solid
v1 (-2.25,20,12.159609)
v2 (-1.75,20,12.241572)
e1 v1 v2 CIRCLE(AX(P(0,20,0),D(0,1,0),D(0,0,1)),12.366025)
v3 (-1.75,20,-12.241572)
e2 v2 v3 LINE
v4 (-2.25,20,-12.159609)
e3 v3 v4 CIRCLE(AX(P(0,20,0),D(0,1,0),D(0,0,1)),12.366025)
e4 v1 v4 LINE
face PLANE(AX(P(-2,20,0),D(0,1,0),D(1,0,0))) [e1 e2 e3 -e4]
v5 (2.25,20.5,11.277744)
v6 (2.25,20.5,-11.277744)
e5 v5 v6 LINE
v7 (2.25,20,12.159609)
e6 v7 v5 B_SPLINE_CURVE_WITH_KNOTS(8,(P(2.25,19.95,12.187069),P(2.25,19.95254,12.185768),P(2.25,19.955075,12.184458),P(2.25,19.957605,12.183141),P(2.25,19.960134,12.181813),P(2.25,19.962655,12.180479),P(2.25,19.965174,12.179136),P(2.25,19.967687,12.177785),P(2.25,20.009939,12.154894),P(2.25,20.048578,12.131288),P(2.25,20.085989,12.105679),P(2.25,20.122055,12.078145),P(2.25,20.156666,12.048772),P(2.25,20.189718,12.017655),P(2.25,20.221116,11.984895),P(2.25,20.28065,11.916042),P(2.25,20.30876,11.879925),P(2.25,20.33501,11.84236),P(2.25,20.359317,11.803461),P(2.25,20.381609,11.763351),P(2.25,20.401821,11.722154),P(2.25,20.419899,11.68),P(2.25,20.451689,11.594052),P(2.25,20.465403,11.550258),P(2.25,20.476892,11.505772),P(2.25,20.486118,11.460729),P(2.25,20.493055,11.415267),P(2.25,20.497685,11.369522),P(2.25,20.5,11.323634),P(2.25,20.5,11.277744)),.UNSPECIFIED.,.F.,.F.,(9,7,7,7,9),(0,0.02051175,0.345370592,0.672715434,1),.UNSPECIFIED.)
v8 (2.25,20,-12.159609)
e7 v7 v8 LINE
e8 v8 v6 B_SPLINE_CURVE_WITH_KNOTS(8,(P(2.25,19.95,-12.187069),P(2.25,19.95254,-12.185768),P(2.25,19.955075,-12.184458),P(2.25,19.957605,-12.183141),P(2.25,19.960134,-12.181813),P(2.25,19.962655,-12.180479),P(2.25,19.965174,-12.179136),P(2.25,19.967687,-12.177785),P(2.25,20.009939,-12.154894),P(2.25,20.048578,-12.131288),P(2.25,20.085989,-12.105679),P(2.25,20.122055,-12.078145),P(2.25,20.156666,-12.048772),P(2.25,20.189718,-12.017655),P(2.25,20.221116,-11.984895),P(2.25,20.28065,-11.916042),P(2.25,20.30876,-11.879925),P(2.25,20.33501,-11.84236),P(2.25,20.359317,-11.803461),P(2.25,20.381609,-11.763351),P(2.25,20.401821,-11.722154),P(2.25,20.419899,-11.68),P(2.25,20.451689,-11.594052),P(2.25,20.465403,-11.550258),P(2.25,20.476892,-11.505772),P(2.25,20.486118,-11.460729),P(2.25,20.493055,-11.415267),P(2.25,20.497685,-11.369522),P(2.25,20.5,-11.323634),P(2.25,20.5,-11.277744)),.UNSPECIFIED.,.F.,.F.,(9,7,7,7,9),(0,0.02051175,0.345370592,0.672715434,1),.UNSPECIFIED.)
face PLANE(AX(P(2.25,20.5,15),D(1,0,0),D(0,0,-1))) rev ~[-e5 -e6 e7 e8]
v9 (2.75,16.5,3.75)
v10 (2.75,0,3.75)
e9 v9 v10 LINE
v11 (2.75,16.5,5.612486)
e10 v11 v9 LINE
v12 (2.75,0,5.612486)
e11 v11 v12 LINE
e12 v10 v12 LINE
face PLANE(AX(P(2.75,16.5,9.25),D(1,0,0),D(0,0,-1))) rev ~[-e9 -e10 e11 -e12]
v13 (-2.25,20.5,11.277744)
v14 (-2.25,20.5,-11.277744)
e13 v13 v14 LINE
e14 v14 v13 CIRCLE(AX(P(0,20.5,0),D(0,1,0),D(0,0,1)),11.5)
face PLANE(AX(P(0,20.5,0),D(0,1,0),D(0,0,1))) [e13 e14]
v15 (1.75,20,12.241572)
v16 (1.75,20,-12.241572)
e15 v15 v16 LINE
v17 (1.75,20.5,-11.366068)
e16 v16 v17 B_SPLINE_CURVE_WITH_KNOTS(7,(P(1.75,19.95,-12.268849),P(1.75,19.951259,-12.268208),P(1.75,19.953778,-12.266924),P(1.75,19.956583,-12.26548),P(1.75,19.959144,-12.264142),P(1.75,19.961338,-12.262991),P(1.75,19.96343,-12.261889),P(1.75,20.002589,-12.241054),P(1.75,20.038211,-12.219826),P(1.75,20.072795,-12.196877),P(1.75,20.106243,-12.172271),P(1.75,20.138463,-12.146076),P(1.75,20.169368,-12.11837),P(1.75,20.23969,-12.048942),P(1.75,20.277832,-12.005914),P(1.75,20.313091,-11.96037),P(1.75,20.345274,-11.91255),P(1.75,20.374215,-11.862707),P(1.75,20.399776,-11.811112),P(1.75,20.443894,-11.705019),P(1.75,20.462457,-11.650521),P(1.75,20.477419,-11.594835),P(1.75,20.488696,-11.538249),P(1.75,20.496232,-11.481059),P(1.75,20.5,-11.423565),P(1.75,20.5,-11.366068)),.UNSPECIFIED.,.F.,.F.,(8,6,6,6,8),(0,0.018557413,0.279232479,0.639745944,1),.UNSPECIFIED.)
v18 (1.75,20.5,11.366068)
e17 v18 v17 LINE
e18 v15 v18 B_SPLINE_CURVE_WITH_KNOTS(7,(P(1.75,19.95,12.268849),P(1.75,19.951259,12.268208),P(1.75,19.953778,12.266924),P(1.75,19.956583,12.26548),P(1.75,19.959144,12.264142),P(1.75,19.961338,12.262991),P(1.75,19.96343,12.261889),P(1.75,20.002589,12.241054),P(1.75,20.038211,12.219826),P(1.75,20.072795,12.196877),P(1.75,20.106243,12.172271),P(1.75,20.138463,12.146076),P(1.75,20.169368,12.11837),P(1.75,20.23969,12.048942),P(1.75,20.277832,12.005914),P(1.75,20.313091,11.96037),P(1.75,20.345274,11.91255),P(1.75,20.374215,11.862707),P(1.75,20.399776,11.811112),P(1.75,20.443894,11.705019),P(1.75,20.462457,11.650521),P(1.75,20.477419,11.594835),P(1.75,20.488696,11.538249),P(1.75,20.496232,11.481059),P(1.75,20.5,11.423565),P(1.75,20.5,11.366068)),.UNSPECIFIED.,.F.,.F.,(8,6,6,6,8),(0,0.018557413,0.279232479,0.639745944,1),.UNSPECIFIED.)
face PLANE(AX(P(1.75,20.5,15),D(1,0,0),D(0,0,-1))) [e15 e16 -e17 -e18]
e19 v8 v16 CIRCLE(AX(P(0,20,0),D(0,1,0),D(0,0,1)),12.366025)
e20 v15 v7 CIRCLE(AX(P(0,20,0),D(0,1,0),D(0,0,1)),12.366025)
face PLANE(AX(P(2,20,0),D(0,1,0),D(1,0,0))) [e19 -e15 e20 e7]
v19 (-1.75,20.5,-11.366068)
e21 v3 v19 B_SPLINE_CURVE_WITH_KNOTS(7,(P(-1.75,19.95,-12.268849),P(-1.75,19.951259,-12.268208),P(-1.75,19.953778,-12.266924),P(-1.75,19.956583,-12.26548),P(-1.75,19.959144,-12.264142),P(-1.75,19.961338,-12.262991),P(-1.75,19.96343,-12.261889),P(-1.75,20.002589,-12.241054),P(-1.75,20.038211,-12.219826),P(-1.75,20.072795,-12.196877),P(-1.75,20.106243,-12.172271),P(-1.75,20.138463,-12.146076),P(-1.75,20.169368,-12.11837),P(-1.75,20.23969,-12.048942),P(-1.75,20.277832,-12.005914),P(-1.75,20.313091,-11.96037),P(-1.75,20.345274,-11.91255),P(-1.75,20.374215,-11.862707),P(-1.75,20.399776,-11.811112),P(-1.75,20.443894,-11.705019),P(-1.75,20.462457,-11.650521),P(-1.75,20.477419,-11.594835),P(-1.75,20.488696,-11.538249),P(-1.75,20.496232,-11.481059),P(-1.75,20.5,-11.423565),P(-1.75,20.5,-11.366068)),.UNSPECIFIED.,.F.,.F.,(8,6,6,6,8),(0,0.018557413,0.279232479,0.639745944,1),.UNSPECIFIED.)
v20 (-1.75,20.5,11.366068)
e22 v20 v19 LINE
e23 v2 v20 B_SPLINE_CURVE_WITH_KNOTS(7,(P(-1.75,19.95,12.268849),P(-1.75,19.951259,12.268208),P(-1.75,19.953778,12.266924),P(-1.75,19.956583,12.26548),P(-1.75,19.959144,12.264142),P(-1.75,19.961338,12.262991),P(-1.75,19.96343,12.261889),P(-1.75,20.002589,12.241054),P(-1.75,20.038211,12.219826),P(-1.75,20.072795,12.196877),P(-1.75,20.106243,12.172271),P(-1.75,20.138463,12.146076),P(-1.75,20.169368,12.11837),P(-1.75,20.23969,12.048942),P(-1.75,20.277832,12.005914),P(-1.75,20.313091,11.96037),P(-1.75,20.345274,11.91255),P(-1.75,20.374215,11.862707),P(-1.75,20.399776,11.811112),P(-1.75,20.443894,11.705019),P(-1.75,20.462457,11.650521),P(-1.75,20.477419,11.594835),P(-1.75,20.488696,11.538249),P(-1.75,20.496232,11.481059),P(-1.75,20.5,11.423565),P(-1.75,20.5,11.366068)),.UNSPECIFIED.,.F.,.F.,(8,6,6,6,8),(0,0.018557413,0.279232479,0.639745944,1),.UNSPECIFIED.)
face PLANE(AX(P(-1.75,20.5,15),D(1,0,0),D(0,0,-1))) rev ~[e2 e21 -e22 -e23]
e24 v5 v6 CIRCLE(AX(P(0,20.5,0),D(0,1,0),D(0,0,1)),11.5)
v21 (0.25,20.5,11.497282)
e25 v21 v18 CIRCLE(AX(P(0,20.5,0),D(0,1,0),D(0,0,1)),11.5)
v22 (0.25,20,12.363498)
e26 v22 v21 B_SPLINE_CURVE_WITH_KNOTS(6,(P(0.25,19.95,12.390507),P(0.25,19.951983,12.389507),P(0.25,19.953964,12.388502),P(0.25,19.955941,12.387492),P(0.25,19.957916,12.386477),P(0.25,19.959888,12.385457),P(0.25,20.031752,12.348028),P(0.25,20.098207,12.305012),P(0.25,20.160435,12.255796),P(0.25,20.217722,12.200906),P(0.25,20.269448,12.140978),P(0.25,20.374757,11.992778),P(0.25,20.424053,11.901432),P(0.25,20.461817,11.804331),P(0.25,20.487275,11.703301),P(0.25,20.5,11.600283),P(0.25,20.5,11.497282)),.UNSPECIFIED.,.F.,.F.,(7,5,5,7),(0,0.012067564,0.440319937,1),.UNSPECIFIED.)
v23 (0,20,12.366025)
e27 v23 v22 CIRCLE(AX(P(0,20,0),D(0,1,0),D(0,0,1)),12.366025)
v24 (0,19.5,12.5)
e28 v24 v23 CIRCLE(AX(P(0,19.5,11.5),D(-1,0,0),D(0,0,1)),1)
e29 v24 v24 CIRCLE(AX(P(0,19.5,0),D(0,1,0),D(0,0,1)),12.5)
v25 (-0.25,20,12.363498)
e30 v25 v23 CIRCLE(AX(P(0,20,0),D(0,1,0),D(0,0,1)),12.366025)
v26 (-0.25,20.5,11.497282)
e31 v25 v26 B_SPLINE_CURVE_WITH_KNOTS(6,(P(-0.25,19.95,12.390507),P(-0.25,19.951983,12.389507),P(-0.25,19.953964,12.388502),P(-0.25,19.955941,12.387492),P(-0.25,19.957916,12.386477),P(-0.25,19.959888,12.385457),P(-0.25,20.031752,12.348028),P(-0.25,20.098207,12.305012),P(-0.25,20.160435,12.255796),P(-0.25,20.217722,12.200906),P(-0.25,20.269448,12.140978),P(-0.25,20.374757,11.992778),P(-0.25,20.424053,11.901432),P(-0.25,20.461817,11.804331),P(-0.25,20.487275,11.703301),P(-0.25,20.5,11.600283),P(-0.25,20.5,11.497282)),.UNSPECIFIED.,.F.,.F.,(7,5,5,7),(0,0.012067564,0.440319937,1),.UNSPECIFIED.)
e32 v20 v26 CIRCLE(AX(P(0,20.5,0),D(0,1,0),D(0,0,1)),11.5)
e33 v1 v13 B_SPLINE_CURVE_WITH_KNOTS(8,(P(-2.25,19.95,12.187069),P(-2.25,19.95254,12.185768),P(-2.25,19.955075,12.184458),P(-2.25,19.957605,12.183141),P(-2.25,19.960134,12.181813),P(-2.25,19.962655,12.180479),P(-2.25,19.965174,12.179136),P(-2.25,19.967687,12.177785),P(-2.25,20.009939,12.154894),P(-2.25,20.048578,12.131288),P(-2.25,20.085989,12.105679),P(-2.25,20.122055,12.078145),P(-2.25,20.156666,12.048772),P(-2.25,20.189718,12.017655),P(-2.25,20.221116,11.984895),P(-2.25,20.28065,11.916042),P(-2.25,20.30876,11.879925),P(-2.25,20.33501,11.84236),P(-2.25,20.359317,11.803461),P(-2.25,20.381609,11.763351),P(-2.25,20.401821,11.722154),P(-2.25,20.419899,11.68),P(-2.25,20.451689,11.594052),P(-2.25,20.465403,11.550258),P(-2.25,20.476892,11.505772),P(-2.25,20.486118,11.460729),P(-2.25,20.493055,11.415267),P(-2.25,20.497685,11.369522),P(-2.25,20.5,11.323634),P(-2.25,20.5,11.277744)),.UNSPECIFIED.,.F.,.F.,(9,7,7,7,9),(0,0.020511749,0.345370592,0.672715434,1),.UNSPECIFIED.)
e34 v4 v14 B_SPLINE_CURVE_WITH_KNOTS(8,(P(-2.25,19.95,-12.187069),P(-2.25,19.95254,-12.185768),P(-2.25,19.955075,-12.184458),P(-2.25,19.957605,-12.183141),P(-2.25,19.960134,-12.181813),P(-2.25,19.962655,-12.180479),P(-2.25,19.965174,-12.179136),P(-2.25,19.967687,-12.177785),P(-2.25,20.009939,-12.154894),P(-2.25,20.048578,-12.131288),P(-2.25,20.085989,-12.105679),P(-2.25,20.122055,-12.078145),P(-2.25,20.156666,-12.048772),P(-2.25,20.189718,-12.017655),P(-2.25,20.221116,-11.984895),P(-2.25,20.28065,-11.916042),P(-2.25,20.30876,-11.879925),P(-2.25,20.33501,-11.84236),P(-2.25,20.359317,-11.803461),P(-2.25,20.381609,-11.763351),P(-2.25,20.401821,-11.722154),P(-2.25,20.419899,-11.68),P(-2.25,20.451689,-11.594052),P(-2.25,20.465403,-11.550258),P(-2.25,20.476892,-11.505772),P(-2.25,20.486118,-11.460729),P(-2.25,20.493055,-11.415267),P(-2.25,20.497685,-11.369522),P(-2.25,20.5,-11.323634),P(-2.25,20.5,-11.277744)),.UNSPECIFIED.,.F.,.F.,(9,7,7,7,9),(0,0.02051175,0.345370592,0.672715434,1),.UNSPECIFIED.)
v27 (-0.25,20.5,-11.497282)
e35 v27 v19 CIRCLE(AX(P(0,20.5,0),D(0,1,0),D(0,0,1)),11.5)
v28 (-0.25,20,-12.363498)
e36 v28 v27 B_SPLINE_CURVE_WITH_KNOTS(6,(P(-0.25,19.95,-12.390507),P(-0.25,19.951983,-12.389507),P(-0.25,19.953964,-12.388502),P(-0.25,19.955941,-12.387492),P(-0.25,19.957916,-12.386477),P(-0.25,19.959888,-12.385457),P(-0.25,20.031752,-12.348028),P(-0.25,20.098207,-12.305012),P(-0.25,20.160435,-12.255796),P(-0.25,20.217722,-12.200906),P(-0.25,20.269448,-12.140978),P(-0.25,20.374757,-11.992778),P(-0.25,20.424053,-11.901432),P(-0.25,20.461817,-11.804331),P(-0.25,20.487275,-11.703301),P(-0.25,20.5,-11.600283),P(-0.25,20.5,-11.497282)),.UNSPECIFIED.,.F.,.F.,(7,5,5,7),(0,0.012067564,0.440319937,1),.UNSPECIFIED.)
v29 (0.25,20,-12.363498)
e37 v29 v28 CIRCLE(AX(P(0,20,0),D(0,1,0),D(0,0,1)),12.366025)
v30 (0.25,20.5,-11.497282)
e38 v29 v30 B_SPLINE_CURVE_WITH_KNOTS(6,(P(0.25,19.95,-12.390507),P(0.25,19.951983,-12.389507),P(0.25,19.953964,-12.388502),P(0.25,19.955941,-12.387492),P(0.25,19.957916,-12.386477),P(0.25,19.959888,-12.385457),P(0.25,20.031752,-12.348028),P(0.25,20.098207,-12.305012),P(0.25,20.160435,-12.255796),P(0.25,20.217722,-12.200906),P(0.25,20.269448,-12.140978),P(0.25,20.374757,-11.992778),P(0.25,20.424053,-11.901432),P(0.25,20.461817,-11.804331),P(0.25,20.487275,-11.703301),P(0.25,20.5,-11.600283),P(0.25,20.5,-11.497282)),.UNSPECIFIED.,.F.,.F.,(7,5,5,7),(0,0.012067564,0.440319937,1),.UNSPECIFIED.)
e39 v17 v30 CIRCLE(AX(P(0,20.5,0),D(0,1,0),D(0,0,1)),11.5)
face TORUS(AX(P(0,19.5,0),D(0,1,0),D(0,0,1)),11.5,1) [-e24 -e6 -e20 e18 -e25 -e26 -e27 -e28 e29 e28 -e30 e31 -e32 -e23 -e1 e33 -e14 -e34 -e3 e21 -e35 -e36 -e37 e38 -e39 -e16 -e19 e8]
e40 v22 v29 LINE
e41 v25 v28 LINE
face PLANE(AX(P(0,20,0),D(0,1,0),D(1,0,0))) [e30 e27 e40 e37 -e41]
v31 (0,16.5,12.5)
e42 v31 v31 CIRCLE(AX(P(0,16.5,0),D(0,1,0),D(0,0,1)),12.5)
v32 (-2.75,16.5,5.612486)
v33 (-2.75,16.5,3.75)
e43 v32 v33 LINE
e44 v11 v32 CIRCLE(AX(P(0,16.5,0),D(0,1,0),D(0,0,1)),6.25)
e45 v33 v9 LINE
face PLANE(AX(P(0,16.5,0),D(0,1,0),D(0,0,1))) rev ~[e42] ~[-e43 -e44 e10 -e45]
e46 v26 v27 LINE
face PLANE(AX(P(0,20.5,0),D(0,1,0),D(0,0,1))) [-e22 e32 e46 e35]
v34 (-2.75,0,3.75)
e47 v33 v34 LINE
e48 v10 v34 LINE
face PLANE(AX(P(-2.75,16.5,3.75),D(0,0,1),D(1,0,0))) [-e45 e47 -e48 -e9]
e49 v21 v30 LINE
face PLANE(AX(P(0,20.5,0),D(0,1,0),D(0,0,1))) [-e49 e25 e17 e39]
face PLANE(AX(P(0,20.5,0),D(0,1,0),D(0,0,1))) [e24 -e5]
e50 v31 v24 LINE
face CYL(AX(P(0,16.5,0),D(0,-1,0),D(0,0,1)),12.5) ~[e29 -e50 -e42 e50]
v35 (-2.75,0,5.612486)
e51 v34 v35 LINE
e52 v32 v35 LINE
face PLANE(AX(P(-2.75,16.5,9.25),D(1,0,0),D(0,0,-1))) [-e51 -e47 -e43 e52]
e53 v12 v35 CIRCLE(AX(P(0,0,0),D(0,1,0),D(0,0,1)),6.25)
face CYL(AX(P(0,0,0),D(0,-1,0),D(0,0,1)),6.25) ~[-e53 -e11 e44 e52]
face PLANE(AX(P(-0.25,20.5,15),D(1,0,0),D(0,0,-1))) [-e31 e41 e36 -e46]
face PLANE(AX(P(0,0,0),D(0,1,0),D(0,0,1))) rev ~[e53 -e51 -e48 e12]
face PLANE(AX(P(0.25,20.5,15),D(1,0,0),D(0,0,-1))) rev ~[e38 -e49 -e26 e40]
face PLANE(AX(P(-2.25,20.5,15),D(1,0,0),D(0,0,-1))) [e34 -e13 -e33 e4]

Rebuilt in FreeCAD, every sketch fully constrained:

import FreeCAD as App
import Part
import Sketcher

V = App.Vector


def edges_at(feature, points):
    """Names of the edges that pass closest to the given points."""
    edges = feature.Shape.Edges
    near = lambda p: min(range(len(edges)), key=lambda i: edges[i].distToShape(Part.Vertex(*p))[0])
    return sorted({f"Edge{near(p) + 1}" for p in points})

doc = App.newDocument("Part")
body = doc.addObject("PartDesign::Body", "Body")

# Sketch on XZ plane
sketch1 = doc.addObject("Sketcher::SketchObject", "Sketch")
body.addObject(sketch1)
sketch1.AttachmentSupport = (doc.XZ_Plane, [""])
sketch1.MapMode = "FlatFace"
sketch1.addGeometry(Part.Circle(V(0, 0, 0), V(0, 0, 1), 6), False)
sketch1.addConstraint(Sketcher.Constraint("Coincident", 0, 3, -1, 1))
sketch1.addConstraint(Sketcher.Constraint("Diameter", 0, 12.5))
pad1 = doc.addObject("PartDesign::Pad", "Pad")
body.addObject(pad1)
pad1.Profile = sketch1
pad1.Length = 16.5
pad1.Reversed = True

# Sketch on XZ plane
sketch2 = doc.addObject("Sketcher::SketchObject", "Sketch001")
body.addObject(sketch2)
sketch2.AttachmentSupport = (doc.XZ_Plane, [""])
sketch2.MapMode = "FlatFace"
sketch2.AttachmentOffset = App.Placement(V(0, 0, -16.5), App.Rotation())
sketch2.addGeometry(Part.LineSegment(V(-3, 4, 0), V(-3, 9, 0)), False)
sketch2.addGeometry(Part.LineSegment(V(-3, 9, 0), V(3, 9, 0)), False)
sketch2.addGeometry(Part.LineSegment(V(3, 9, 0), V(3, 4, 0)), False)
sketch2.addGeometry(Part.LineSegment(V(3, 4, 0), V(-3, 4, 0)), False)
sketch2.addConstraint(Sketcher.Constraint("Coincident", 0, 2, 1, 1))
sketch2.addConstraint(Sketcher.Constraint("Coincident", 1, 2, 2, 1))
sketch2.addConstraint(Sketcher.Constraint("Coincident", 2, 2, 3, 1))
sketch2.addConstraint(Sketcher.Constraint("Coincident", 3, 2, 0, 1))
sketch2.addConstraint(Sketcher.Constraint("Vertical", 0))
sketch2.addConstraint(Sketcher.Constraint("Horizontal", 1))
sketch2.addConstraint(Sketcher.Constraint("Vertical", 2))
sketch2.addConstraint(Sketcher.Constraint("Horizontal", 3))
sketch2.addConstraint(Sketcher.Constraint("Equal", 3, 0))
sketch2.addConstraint(Sketcher.Constraint("DistanceX", 1, 1, 1, 2, 5.5))
sketch2.addConstraint(Sketcher.Constraint("DistanceX", 0, 2, -1, 1, 2.75))
sketch2.addConstraint(Sketcher.Constraint("DistanceY", -1, 1, 0, 2, 9.25))
pocket1 = doc.addObject("PartDesign::Pocket", "Pocket")
body.addObject(pocket1)
pocket1.Profile = sketch2
pocket1.Length = 16.5
pocket1.Reversed = True

# Sketch on XZ plane
sketch3 = doc.addObject("Sketcher::SketchObject", "Sketch002")
body.addObject(sketch3)
sketch3.AttachmentSupport = (doc.XZ_Plane, [""])
sketch3.MapMode = "FlatFace"
sketch3.AttachmentOffset = App.Placement(V(0, 0, -16.5), App.Rotation())
sketch3.addGeometry(Part.Circle(V(0, 0, 0), V(0, 0, 1), 12), False)
sketch3.addConstraint(Sketcher.Constraint("Coincident", 0, 3, -1, 1))
sketch3.addConstraint(Sketcher.Constraint("Diameter", 0, 25.0))
pad2 = doc.addObject("PartDesign::Pad", "Pad001")
body.addObject(pad2)
pad2.Profile = sketch3
pad2.Length = 4
pad2.Reversed = True
doc.recompute()

fillet = doc.addObject("PartDesign::Fillet", "Fillet")
body.addObject(fillet)
fillet.Base = (pad2, edges_at(pad2, [(0, 20.5, -12.5)]))
fillet.Radius = 1

# Sketch on XZ plane
sketch4 = doc.addObject("Sketcher::SketchObject", "Sketch003")
body.addObject(sketch4)
sketch4.AttachmentSupport = (doc.XZ_Plane, [""])
sketch4.MapMode = "FlatFace"
sketch4.AttachmentOffset = App.Placement(V(0, 0, -20.5), App.Rotation())
sketch4.addGeometry(Part.LineSegment(V(-0.2, -15, 0), V(-0.2, 15, 0)), False)
sketch4.addGeometry(Part.LineSegment(V(-0.2, 15, 0), V(0.2, 15, 0)), False)
sketch4.addGeometry(Part.LineSegment(V(0.2, 15, 0), V(0.2, -15, 0)), False)
sketch4.addGeometry(Part.LineSegment(V(0.2, -15, 0), V(-0.2, -15, 0)), False)
sketch4.addGeometry(Part.LineSegment(V(1.8, -15, 0), V(1.8, 15, 0)), False)
sketch4.addGeometry(Part.LineSegment(V(1.8, 15, 0), V(2.2, 15, 0)), False)
sketch4.addGeometry(Part.LineSegment(V(2.2, 15, 0), V(2.2, -15, 0)), False)
sketch4.addGeometry(Part.LineSegment(V(2.2, -15, 0), V(1.8, -15, 0)), False)
sketch4.addGeometry(Part.LineSegment(V(-2.2, -15, 0), V(-2.2, 15, 0)), False)
sketch4.addGeometry(Part.LineSegment(V(-2.2, 15, 0), V(-1.8, 15, 0)), False)
sketch4.addGeometry(Part.LineSegment(V(-1.8, 15, 0), V(-1.8, -15, 0)), False)
sketch4.addGeometry(Part.LineSegment(V(-1.8, -15, 0), V(-2.2, -15, 0)), False)
sketch4.addConstraint(Sketcher.Constraint("Coincident", 0, 2, 1, 1))
sketch4.addConstraint(Sketcher.Constraint("Coincident", 1, 2, 2, 1))
sketch4.addConstraint(Sketcher.Constraint("Coincident", 2, 2, 3, 1))
sketch4.addConstraint(Sketcher.Constraint("Coincident", 3, 2, 0, 1))
sketch4.addConstraint(Sketcher.Constraint("Coincident", 4, 2, 5, 1))
sketch4.addConstraint(Sketcher.Constraint("Coincident", 5, 2, 6, 1))
sketch4.addConstraint(Sketcher.Constraint("Coincident", 6, 2, 7, 1))
sketch4.addConstraint(Sketcher.Constraint("Coincident", 7, 2, 4, 1))
sketch4.addConstraint(Sketcher.Constraint("Coincident", 8, 2, 9, 1))
sketch4.addConstraint(Sketcher.Constraint("Coincident", 9, 2, 10, 1))
sketch4.addConstraint(Sketcher.Constraint("Coincident", 10, 2, 11, 1))
sketch4.addConstraint(Sketcher.Constraint("Coincident", 11, 2, 8, 1))
sketch4.addConstraint(Sketcher.Constraint("Vertical", 0))
sketch4.addConstraint(Sketcher.Constraint("Horizontal", 1))
sketch4.addConstraint(Sketcher.Constraint("Vertical", 2))
sketch4.addConstraint(Sketcher.Constraint("Horizontal", 3))
sketch4.addConstraint(Sketcher.Constraint("Vertical", 4))
sketch4.addConstraint(Sketcher.Constraint("Horizontal", 5))
sketch4.addConstraint(Sketcher.Constraint("Vertical", 6))
sketch4.addConstraint(Sketcher.Constraint("Horizontal", 7))
sketch4.addConstraint(Sketcher.Constraint("Vertical", 8))
sketch4.addConstraint(Sketcher.Constraint("Horizontal", 9))
sketch4.addConstraint(Sketcher.Constraint("Vertical", 10))
sketch4.addConstraint(Sketcher.Constraint("Horizontal", 11))
sketch4.addConstraint(Sketcher.Constraint("Symmetric", 0, 2, 2, 2, -1, 1))
sketch4.addConstraint(Sketcher.Constraint("Symmetric", 6, 2, 8, 2, -1, 1))
sketch4.addConstraint(Sketcher.Constraint("Symmetric", 4, 2, 10, 2, -1, 1))
sketch4.addConstraint(Sketcher.Constraint("Horizontal", 1, 2, 4, 2))
sketch4.addConstraint(Sketcher.Constraint("Horizontal", 3, 2, 6, 2))
sketch4.addConstraint(Sketcher.Constraint("Equal", 3, 5))
sketch4.addConstraint(Sketcher.Constraint("DistanceY", 0, 1, 0, 2, 30.0))
sketch4.addConstraint(Sketcher.Constraint("DistanceX", 1, 1, 1, 2, 0.5))
sketch4.addConstraint(Sketcher.Constraint("DistanceX", 0, 2, 4, 2, 2.0))
pocket2 = doc.addObject("PartDesign::Pocket", "Pocket001")
body.addObject(pocket2)
pocket2.Profile = sketch4
pocket2.Length = 0.5
pocket2.Reversed = True

doc.recompute()
